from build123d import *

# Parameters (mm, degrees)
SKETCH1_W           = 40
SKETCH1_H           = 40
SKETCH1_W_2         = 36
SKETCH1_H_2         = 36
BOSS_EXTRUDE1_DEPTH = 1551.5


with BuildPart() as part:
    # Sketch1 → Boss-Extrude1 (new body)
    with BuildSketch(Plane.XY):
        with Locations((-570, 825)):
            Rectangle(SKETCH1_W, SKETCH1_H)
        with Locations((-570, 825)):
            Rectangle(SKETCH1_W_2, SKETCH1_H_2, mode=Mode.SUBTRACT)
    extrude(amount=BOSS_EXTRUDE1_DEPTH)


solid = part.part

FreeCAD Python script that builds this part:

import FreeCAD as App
import Part
import Sketcher
from FreeCAD import Vector

doc = App.newDocument("Part")
body = doc.addObject("PartDesign::Body", "Body")

sketch1 = body.newObject("Sketcher::SketchObject", "Sketch")
sketch1.AttachmentSupport = (doc.getObject("XY_Plane"), [""])
sketch1.MapMode = "FlatFace"
sketch1.addGeometry([
    Part.LineSegment(Vector(-590, 845, 0), Vector(-590, 805, 0)),
    Part.LineSegment(Vector(-590, 805, 0), Vector(-550, 805, 0)),
    Part.LineSegment(Vector(-550, 805, 0), Vector(-550, 845, 0)),
    Part.LineSegment(Vector(-550, 845, 0), Vector(-590, 845, 0)),
    Part.LineSegment(Vector(-552, 807, 0), Vector(-588, 807, 0)),
    Part.LineSegment(Vector(-588, 807, 0), Vector(-588, 843, 0)),
    Part.LineSegment(Vector(-588, 843, 0), Vector(-552, 843, 0)),
    Part.LineSegment(Vector(-552, 843, 0), Vector(-552, 807, 0)),
], False)
sketch1.addConstraint([
    Sketcher.Constraint("Coincident", 0, 2, 1, 1),
    Sketcher.Constraint("Coincident", 1, 2, 2, 1),
    Sketcher.Constraint("Coincident", 2, 2, 3, 1),
    Sketcher.Constraint("Coincident", 3, 2, 0, 1),
    Sketcher.Constraint("Coincident", 4, 2, 5, 1),
    Sketcher.Constraint("Coincident", 5, 2, 6, 1),
    Sketcher.Constraint("Coincident", 6, 2, 7, 1),
    Sketcher.Constraint("Coincident", 7, 2, 4, 1),
    Sketcher.Constraint("Vertical", 0),
    Sketcher.Constraint("Horizontal", 1),
    Sketcher.Constraint("Vertical", 2),
    Sketcher.Constraint("Horizontal", 3),
    Sketcher.Constraint("Horizontal", 4),
    Sketcher.Constraint("Vertical", 5),
    Sketcher.Constraint("Horizontal", 6),
    Sketcher.Constraint("Vertical", 7),
    Sketcher.Constraint("Equal", 3, 0),
    Sketcher.Constraint("Equal", 6, 5),
    Sketcher.Constraint("DistanceX", 1, 1, 1, 2, 40.0),
    Sketcher.Constraint("DistanceX", 4, 2, 4, 1, 36.0),
    Sketcher.Constraint("DistanceX", 0, 2, -1, 1, 590.0),
    Sketcher.Constraint("DistanceY", -1, 1, 0, 2, 805.0),
    Sketcher.Constraint("DistanceX", 4, 2, -1, 1, 588.0),
    Sketcher.Constraint("DistanceY", -1, 1, 4, 2, 807.0),
])
pad1 = body.newObject("PartDesign::Pad", "Pad")
pad1.Profile = sketch1
pad1.Length = 1551.5

doc.recompute()
